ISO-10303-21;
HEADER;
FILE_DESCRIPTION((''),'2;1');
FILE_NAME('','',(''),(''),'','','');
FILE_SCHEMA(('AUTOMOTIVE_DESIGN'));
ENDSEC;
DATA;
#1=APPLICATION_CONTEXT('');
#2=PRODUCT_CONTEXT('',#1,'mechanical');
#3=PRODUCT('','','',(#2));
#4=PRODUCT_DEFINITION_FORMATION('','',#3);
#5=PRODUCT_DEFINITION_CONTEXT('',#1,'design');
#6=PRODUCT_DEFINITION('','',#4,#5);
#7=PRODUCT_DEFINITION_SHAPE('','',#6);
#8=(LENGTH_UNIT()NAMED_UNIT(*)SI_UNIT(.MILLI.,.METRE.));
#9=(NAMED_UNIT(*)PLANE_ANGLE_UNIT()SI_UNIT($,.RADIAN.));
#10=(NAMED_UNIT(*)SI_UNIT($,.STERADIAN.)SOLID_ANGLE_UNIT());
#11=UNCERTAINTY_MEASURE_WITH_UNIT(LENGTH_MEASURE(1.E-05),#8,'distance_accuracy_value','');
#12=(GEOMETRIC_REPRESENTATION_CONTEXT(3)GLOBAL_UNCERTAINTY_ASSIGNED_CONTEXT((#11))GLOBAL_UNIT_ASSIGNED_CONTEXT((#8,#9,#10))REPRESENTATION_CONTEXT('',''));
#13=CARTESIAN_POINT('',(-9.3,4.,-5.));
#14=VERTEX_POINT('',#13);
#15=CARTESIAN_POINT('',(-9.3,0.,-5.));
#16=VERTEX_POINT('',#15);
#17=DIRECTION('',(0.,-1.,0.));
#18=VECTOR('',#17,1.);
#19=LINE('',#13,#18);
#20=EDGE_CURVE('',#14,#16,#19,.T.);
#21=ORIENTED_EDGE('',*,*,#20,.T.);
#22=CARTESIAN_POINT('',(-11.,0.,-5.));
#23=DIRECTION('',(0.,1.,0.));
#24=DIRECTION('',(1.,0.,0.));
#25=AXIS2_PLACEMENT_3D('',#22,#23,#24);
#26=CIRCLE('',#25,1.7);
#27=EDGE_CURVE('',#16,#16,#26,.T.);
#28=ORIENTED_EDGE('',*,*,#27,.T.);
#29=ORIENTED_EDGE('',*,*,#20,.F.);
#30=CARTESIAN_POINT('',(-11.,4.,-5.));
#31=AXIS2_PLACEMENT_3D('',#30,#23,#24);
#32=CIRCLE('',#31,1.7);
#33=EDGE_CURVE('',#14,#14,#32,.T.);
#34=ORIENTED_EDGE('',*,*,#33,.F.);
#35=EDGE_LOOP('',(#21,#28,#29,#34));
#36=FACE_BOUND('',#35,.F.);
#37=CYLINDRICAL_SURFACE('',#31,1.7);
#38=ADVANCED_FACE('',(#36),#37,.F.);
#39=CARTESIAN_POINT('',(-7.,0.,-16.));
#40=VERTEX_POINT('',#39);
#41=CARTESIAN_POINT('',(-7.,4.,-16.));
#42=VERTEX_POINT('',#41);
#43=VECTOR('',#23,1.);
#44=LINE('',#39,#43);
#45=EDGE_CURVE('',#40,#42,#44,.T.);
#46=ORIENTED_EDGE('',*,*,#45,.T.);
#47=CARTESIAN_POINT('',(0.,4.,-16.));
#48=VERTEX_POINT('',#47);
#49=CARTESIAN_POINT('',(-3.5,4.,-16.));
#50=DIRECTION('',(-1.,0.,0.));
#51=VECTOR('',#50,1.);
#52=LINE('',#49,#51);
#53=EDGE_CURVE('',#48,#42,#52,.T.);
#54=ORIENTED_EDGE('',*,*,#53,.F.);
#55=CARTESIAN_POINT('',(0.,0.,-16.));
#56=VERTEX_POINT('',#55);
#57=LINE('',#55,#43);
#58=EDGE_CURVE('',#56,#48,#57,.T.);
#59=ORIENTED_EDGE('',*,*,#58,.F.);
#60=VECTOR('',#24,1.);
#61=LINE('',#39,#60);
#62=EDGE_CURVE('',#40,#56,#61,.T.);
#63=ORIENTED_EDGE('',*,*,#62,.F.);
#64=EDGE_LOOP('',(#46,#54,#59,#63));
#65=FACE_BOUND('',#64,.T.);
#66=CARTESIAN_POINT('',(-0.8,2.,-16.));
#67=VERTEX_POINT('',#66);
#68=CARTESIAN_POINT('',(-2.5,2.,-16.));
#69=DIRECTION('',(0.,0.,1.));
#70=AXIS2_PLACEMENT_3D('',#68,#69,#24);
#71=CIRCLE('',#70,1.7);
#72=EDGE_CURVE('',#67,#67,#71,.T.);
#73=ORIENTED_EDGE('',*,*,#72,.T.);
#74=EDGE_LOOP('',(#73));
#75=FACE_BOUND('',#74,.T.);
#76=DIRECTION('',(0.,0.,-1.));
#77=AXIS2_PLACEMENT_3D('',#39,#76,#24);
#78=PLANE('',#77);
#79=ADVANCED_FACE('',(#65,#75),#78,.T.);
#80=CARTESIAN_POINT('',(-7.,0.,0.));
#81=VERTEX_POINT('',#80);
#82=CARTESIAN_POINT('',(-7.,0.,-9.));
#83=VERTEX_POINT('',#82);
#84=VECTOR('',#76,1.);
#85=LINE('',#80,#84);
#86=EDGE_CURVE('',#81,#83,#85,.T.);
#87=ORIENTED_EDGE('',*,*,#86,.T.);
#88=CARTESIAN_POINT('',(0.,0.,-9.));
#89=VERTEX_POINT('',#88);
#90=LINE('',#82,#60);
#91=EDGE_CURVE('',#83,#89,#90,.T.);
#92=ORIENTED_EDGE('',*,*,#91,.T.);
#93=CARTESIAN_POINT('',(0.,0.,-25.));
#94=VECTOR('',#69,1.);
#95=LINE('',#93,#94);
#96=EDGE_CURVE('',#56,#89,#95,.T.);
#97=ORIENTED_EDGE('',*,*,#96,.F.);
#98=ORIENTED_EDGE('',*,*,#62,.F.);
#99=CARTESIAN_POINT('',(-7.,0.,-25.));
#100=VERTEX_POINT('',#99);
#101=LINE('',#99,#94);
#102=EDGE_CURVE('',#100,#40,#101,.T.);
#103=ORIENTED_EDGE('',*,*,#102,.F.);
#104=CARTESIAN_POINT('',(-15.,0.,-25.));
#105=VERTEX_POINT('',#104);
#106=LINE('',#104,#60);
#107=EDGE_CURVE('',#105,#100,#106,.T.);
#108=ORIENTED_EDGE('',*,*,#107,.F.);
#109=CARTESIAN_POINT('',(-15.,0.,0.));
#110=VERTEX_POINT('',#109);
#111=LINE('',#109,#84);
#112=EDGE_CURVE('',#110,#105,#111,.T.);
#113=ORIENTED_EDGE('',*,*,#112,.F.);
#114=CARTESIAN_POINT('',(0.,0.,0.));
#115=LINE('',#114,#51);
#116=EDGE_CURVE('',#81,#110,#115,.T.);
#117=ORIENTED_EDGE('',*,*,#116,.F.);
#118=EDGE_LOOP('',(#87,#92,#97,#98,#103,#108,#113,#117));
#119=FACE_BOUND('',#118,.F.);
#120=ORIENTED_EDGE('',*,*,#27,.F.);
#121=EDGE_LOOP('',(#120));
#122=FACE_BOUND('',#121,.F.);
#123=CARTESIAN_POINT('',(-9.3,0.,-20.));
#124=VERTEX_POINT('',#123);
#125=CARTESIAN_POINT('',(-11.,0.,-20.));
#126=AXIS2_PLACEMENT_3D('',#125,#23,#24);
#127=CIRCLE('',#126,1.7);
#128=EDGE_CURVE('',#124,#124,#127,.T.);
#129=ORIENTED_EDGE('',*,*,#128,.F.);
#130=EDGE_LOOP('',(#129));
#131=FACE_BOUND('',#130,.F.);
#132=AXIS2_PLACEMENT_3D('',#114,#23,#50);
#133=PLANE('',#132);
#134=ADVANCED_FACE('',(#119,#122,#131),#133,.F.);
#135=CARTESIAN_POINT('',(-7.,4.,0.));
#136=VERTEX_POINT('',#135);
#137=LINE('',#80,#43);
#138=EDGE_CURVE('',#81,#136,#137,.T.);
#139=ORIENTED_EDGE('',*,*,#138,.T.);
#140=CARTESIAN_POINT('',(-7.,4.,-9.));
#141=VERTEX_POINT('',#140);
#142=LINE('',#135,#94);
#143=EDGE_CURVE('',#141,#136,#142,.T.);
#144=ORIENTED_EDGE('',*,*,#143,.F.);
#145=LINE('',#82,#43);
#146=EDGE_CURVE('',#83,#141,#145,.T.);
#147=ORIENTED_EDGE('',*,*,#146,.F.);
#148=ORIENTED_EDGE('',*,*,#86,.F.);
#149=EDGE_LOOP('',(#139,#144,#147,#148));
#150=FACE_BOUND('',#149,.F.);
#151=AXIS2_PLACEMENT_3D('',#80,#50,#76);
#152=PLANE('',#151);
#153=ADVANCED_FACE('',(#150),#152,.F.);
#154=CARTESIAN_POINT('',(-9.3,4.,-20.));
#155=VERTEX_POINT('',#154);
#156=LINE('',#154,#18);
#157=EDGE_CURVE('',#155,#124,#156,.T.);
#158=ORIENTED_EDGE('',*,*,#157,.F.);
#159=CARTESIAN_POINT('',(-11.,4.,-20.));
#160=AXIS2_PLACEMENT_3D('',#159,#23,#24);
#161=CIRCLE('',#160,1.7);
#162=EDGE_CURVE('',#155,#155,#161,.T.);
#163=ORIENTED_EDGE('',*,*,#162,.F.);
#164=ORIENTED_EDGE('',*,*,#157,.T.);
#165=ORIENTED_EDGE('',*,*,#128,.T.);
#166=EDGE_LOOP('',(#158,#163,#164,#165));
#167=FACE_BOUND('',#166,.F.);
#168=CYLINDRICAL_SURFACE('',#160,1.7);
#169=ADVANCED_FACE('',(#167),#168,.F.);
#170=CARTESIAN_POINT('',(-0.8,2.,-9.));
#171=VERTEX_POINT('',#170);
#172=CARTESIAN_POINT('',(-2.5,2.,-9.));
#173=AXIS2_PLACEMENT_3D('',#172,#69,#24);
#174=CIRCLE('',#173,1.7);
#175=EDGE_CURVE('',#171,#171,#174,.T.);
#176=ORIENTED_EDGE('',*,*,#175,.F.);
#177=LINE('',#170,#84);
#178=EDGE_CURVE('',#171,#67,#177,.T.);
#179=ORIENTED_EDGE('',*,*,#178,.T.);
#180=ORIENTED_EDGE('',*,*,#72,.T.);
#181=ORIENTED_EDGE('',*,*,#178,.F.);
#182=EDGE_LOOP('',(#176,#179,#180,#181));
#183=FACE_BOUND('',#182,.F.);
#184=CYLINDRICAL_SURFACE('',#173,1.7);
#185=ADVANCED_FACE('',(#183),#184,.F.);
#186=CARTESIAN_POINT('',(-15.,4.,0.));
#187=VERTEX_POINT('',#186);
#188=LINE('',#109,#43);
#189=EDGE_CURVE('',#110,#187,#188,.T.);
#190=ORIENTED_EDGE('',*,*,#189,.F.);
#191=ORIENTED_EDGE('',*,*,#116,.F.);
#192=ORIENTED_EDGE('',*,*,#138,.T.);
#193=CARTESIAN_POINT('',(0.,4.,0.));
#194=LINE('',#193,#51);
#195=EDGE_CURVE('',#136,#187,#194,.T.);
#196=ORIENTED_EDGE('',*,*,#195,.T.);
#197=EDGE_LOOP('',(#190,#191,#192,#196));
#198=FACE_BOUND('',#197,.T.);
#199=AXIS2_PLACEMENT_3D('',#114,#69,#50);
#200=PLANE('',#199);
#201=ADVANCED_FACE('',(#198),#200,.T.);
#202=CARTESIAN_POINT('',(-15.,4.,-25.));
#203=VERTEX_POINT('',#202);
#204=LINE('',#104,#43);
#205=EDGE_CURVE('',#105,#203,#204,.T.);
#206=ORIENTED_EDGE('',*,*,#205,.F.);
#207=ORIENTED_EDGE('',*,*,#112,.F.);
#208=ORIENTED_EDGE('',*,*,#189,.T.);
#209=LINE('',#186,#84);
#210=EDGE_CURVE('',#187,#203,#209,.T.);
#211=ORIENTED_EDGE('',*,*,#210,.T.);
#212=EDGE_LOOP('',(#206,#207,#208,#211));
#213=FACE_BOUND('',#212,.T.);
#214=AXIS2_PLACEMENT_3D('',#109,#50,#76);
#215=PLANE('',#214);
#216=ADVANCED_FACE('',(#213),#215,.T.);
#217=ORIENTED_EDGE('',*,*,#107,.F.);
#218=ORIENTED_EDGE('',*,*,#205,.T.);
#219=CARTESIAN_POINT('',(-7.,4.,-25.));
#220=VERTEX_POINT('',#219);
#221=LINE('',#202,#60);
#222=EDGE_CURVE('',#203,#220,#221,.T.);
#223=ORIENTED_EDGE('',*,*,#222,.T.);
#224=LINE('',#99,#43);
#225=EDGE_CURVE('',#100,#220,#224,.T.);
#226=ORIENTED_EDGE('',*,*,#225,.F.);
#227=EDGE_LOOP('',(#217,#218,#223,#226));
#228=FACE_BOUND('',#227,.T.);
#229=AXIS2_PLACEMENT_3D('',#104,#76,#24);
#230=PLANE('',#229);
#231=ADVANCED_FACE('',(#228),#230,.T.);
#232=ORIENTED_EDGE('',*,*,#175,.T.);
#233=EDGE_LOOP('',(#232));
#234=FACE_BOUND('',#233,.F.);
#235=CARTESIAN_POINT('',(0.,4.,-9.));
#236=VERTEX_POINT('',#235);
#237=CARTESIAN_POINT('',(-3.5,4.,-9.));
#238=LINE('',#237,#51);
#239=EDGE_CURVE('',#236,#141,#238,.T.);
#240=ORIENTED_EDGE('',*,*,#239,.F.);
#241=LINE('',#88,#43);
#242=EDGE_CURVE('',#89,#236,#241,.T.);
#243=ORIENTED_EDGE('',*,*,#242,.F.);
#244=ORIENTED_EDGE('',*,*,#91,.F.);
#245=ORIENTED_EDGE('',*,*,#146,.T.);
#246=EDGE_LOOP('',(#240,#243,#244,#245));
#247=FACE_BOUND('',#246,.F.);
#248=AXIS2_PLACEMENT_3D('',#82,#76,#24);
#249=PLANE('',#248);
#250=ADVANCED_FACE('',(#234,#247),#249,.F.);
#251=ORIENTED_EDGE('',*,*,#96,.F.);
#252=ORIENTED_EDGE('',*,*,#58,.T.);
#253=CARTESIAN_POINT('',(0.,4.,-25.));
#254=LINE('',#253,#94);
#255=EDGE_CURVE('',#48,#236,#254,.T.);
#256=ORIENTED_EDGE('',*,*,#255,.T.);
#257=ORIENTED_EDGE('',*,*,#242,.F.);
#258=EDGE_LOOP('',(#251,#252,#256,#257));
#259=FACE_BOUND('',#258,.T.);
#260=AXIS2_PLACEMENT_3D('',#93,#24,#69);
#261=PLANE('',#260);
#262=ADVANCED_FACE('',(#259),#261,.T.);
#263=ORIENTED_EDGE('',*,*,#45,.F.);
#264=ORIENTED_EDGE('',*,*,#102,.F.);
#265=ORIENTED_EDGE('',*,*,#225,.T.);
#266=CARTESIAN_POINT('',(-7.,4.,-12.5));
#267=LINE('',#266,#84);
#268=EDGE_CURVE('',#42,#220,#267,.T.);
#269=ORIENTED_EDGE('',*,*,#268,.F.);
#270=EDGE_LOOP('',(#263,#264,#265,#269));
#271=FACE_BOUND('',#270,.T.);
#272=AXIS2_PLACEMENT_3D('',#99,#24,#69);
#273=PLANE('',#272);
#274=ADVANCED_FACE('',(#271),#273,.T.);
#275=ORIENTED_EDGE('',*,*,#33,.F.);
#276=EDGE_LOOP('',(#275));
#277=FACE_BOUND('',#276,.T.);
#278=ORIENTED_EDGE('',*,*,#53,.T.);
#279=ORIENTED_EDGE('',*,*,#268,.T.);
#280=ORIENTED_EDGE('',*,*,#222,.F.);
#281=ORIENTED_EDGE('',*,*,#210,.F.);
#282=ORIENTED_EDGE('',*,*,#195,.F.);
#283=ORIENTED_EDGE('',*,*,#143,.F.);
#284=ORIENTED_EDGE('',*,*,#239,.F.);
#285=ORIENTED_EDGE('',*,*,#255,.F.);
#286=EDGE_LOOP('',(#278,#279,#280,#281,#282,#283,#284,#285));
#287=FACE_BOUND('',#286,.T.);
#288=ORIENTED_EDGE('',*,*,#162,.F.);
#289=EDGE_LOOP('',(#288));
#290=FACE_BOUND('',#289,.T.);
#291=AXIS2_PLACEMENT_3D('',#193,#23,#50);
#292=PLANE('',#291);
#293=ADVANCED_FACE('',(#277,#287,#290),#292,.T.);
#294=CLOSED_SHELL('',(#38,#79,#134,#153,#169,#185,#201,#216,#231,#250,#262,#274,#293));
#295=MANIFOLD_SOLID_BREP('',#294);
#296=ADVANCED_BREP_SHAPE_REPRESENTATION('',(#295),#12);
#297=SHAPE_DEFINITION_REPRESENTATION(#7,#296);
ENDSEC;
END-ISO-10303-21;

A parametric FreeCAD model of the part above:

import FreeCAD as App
import Part
import Sketcher

doc = App.newDocument("Part")
body = doc.addObject("PartDesign::Body", "Body")

# Sketch on XZ plane
sketch1 = doc.addObject("Sketcher::SketchObject", "Sketch")
body.addObject(sketch1)
sketch1.AttachmentSupport = (doc.XZ_Plane, [""])
sketch1.MapMode = "FlatFace"
sketch1.addGeometry([
    Part.LineSegment(App.Vector(-15, 0, 0), App.Vector(0, 0, 0)),
    Part.LineSegment(App.Vector(0, 0, 0), App.Vector(0, -25, 0)),
    Part.LineSegment(App.Vector(0, -25, 0), App.Vector(-15, -25, 0)),
    Part.LineSegment(App.Vector(-15, -25, 0), App.Vector(-15, 0, 0)),
], False)
sketch1.addConstraint([
    Sketcher.Constraint("Coincident", 0, 2, 1, 1),
    Sketcher.Constraint("Coincident", 1, 2, 2, 1),
    Sketcher.Constraint("Coincident", 2, 2, 3, 1),
    Sketcher.Constraint("Coincident", 3, 2, 0, 1),
    Sketcher.Constraint("Horizontal", 0),
    Sketcher.Constraint("Vertical", 1),
    Sketcher.Constraint("Horizontal", 2),
    Sketcher.Constraint("Vertical", 3),
    Sketcher.Constraint("Coincident", 0, 2, -1, 1),
    Sketcher.Constraint("DistanceX", 0, 1, 0, 2, 15.0),
    Sketcher.Constraint("DistanceY", 1, 2, 1, 1, 25.0),
])
pad1 = doc.addObject("PartDesign::Pad", "Pad")
body.addObject(pad1)
pad1.Profile = sketch1
pad1.Length = 4
pad1.Reversed = True

# Sketch on XZ plane
sketch2 = doc.addObject("Sketcher::SketchObject", "Sketch001")
body.addObject(sketch2)
sketch2.AttachmentSupport = (doc.XZ_Plane, [""])
sketch2.MapMode = "FlatFace"
sketch2.AttachmentOffset = App.Placement(App.Vector(0, 0, -4), App.Rotation())
sketch2.addGeometry([
    Part.Circle(App.Vector(-11, -5, 0), App.Vector(0, 0, 1), 1.7),
    Part.Circle(App.Vector(-11, -20, 0), App.Vector(0, 0, 1), 1.7),
], False)
sketch2.addConstraint([
    Sketcher.Constraint("Equal", 0, 1),
    Sketcher.Constraint("Vertical", 0, 3, 1, 3),
    Sketcher.Constraint("Diameter", 0, 3.4),
    Sketcher.Constraint("DistanceY", 0, 3, -1, 1, 5.0),
    Sketcher.Constraint("DistanceX", 0, 3, -1, 1, 11.0),
    Sketcher.Constraint("DistanceY", 1, 3, -1, 1, 20.0),
])
pocket1 = doc.addObject("PartDesign::Pocket", "Pocket")
body.addObject(pocket1)
pocket1.Profile = sketch2
pocket1.Length = 30
pocket1.Reversed = True

# Sketch on XZ plane
sketch3 = doc.addObject("Sketcher::SketchObject", "Sketch002")
body.addObject(sketch3)
sketch3.AttachmentSupport = (doc.XZ_Plane, [""])
sketch3.MapMode = "FlatFace"
sketch3.addGeometry([
    Part.LineSegment(App.Vector(-7, -25, 0), App.Vector(0, -25, 0)),  # 0
    Part.LineSegment(App.Vector(0, -25, 0), App.Vector(0, -16, 0)),  # 1
    Part.LineSegment(App.Vector(0, -16, 0), App.Vector(-7, -16, 0)),  # 2
    Part.LineSegment(App.Vector(-7, -16, 0), App.Vector(-7, -25, 0)),  # 3
    Part.LineSegment(App.Vector(0, 0, 0), App.Vector(-7, 0, 0)),  # 4
    Part.LineSegment(App.Vector(-7, 0, 0), App.Vector(-7, -9, 0)),  # 5
    Part.LineSegment(App.Vector(-7, -9, 0), App.Vector(0, -9, 0)),  # 6
    Part.LineSegment(App.Vector(0, -9, 0), App.Vector(0, 0, 0)),  # 7
], False)
sketch3.addConstraint([
    Sketcher.Constraint("Coincident", 0, 2, 1, 1),
    Sketcher.Constraint("Coincident", 1, 2, 2, 1),
    Sketcher.Constraint("Coincident", 2, 2, 3, 1),
    Sketcher.Constraint("Coincident", 3, 2, 0, 1),
    Sketcher.Constraint("Coincident", 4, 2, 5, 1),
    Sketcher.Constraint("Coincident", 5, 2, 6, 1),
    Sketcher.Constraint("Coincident", 6, 2, 7, 1),
    Sketcher.Constraint("Coincident", 7, 2, 4, 1),
    Sketcher.Constraint("Horizontal", 0),
    Sketcher.Constraint("Vertical", 1),
    Sketcher.Constraint("Horizontal", 2),
    Sketcher.Constraint("Vertical", 3),
    Sketcher.Constraint("Horizontal", 4),
    Sketcher.Constraint("Vertical", 5),
    Sketcher.Constraint("Horizontal", 6),
    Sketcher.Constraint("Vertical", 7),
    Sketcher.Constraint("Coincident", 7, 2, -1, 1),
    Sketcher.Constraint("PointOnObject", 0, 2, -2),
    Sketcher.Constraint("Vertical", 3, 2, 4, 2),
    Sketcher.Constraint("Equal", 3, 5),
    Sketcher.Constraint("DistanceX", 0, 1, 0, 2, 7.0),
    Sketcher.Constraint("DistanceY", 1, 1, 1, 2, 9.0),
    Sketcher.Constraint("DistanceY", 2, 2, 5, 2, 7.0),
])
pocket2 = doc.addObject("PartDesign::Pocket", "Pocket001")
body.addObject(pocket2)
pocket2.Profile = sketch3
pocket2.Length = 30

# Sketch on XY plane
sketch4 = doc.addObject("Sketcher::SketchObject", "Sketch003")
body.addObject(sketch4)
sketch4.AttachmentSupport = (doc.XY_Plane, [""])
sketch4.MapMode = "FlatFace"
sketch4.AttachmentOffset = App.Placement(App.Vector(0, 0, -9), App.Rotation())
sketch4.addGeometry(Part.Circle(App.Vector(-2.5, 2, 0), App.Vector(0, 0, 1), 1.7), False)
sketch4.addConstraint([
    Sketcher.Constraint("Diameter", 0, 3.4),
    Sketcher.Constraint("DistanceY", -1, 1, 0, 3, 2.0),
    Sketcher.Constraint("DistanceX", 0, 3, -1, 1, 2.5),
])
pocket3 = doc.addObject("PartDesign::Pocket", "Pocket002")
body.addObject(pocket3)
pocket3.Profile = sketch4
pocket3.Length = 30

doc.recompute()
